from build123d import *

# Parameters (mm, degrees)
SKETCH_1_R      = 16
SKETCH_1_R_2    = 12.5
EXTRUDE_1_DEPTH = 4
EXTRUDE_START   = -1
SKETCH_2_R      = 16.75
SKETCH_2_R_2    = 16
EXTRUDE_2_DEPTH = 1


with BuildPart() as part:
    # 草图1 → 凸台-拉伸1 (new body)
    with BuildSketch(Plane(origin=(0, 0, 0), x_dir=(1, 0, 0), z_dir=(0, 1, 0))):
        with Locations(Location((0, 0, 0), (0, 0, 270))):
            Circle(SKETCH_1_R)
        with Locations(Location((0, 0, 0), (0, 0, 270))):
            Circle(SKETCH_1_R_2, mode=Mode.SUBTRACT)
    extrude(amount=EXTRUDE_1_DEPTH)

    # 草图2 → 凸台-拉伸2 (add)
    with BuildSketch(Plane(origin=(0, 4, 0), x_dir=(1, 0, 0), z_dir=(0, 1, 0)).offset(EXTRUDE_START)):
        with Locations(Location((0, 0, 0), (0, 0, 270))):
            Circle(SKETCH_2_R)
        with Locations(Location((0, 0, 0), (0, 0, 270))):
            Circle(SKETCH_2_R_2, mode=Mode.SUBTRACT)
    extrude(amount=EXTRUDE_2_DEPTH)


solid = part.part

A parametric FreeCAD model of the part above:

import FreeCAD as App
import Part
import Sketcher

V = App.Vector

doc = App.newDocument("Part")
body = doc.addObject("PartDesign::Body", "Body")

sketch1 = doc.addObject("Sketcher::SketchObject", "Sketch")
body.addObject(sketch1)
sketch1.AttachmentSupport = (doc.XZ_Plane, [""])
sketch1.MapMode = "FlatFace"
sketch1.addGeometry(Part.Circle(V(0, 0, 0), V(0, 0, 1), 16), False)
sketch1.addGeometry(Part.Circle(V(0, 0, 0), V(0, 0, 1), 12), False)
sketch1.addConstraint(Sketcher.Constraint("Coincident", 0, 3, -1, 1))
sketch1.addConstraint(Sketcher.Constraint("Coincident", 1, 3, -1, 1))
sketch1.addConstraint(Sketcher.Constraint("Diameter", 0, 32.0))
sketch1.addConstraint(Sketcher.Constraint("Diameter", 1, 25.0))
pad1 = doc.addObject("PartDesign::Pad", "Pad")
body.addObject(pad1)
pad1.Profile = sketch1
pad1.Length = 4
pad1.Reversed = True

sketch2 = doc.addObject("Sketcher::SketchObject", "Sketch001")
body.addObject(sketch2)
sketch2.AttachmentSupport = (doc.XZ_Plane, [""])
sketch2.MapMode = "FlatFace"
sketch2.AttachmentOffset = App.Placement(V(0, 0, -3), App.Rotation())
sketch2.addGeometry(Part.Circle(V(0, 0, 0), V(0, 0, 1), 17), False)
sketch2.addGeometry(Part.Circle(V(0, 0, 0), V(0, 0, 1), 16), False)
sketch2.addConstraint(Sketcher.Constraint("Coincident", 0, 3, -1, 1))
sketch2.addConstraint(Sketcher.Constraint("Coincident", 1, 3, -1, 1))
sketch2.addConstraint(Sketcher.Constraint("Diameter", 1, 32.0))
sketch2.addConstraint(Sketcher.Constraint("Diameter", 0, 33.5))
pad2 = doc.addObject("PartDesign::Pad", "Pad001")
body.addObject(pad2)
pad2.Profile = sketch2
pad2.Length = 1
pad2.Reversed = True

doc.recompute()
